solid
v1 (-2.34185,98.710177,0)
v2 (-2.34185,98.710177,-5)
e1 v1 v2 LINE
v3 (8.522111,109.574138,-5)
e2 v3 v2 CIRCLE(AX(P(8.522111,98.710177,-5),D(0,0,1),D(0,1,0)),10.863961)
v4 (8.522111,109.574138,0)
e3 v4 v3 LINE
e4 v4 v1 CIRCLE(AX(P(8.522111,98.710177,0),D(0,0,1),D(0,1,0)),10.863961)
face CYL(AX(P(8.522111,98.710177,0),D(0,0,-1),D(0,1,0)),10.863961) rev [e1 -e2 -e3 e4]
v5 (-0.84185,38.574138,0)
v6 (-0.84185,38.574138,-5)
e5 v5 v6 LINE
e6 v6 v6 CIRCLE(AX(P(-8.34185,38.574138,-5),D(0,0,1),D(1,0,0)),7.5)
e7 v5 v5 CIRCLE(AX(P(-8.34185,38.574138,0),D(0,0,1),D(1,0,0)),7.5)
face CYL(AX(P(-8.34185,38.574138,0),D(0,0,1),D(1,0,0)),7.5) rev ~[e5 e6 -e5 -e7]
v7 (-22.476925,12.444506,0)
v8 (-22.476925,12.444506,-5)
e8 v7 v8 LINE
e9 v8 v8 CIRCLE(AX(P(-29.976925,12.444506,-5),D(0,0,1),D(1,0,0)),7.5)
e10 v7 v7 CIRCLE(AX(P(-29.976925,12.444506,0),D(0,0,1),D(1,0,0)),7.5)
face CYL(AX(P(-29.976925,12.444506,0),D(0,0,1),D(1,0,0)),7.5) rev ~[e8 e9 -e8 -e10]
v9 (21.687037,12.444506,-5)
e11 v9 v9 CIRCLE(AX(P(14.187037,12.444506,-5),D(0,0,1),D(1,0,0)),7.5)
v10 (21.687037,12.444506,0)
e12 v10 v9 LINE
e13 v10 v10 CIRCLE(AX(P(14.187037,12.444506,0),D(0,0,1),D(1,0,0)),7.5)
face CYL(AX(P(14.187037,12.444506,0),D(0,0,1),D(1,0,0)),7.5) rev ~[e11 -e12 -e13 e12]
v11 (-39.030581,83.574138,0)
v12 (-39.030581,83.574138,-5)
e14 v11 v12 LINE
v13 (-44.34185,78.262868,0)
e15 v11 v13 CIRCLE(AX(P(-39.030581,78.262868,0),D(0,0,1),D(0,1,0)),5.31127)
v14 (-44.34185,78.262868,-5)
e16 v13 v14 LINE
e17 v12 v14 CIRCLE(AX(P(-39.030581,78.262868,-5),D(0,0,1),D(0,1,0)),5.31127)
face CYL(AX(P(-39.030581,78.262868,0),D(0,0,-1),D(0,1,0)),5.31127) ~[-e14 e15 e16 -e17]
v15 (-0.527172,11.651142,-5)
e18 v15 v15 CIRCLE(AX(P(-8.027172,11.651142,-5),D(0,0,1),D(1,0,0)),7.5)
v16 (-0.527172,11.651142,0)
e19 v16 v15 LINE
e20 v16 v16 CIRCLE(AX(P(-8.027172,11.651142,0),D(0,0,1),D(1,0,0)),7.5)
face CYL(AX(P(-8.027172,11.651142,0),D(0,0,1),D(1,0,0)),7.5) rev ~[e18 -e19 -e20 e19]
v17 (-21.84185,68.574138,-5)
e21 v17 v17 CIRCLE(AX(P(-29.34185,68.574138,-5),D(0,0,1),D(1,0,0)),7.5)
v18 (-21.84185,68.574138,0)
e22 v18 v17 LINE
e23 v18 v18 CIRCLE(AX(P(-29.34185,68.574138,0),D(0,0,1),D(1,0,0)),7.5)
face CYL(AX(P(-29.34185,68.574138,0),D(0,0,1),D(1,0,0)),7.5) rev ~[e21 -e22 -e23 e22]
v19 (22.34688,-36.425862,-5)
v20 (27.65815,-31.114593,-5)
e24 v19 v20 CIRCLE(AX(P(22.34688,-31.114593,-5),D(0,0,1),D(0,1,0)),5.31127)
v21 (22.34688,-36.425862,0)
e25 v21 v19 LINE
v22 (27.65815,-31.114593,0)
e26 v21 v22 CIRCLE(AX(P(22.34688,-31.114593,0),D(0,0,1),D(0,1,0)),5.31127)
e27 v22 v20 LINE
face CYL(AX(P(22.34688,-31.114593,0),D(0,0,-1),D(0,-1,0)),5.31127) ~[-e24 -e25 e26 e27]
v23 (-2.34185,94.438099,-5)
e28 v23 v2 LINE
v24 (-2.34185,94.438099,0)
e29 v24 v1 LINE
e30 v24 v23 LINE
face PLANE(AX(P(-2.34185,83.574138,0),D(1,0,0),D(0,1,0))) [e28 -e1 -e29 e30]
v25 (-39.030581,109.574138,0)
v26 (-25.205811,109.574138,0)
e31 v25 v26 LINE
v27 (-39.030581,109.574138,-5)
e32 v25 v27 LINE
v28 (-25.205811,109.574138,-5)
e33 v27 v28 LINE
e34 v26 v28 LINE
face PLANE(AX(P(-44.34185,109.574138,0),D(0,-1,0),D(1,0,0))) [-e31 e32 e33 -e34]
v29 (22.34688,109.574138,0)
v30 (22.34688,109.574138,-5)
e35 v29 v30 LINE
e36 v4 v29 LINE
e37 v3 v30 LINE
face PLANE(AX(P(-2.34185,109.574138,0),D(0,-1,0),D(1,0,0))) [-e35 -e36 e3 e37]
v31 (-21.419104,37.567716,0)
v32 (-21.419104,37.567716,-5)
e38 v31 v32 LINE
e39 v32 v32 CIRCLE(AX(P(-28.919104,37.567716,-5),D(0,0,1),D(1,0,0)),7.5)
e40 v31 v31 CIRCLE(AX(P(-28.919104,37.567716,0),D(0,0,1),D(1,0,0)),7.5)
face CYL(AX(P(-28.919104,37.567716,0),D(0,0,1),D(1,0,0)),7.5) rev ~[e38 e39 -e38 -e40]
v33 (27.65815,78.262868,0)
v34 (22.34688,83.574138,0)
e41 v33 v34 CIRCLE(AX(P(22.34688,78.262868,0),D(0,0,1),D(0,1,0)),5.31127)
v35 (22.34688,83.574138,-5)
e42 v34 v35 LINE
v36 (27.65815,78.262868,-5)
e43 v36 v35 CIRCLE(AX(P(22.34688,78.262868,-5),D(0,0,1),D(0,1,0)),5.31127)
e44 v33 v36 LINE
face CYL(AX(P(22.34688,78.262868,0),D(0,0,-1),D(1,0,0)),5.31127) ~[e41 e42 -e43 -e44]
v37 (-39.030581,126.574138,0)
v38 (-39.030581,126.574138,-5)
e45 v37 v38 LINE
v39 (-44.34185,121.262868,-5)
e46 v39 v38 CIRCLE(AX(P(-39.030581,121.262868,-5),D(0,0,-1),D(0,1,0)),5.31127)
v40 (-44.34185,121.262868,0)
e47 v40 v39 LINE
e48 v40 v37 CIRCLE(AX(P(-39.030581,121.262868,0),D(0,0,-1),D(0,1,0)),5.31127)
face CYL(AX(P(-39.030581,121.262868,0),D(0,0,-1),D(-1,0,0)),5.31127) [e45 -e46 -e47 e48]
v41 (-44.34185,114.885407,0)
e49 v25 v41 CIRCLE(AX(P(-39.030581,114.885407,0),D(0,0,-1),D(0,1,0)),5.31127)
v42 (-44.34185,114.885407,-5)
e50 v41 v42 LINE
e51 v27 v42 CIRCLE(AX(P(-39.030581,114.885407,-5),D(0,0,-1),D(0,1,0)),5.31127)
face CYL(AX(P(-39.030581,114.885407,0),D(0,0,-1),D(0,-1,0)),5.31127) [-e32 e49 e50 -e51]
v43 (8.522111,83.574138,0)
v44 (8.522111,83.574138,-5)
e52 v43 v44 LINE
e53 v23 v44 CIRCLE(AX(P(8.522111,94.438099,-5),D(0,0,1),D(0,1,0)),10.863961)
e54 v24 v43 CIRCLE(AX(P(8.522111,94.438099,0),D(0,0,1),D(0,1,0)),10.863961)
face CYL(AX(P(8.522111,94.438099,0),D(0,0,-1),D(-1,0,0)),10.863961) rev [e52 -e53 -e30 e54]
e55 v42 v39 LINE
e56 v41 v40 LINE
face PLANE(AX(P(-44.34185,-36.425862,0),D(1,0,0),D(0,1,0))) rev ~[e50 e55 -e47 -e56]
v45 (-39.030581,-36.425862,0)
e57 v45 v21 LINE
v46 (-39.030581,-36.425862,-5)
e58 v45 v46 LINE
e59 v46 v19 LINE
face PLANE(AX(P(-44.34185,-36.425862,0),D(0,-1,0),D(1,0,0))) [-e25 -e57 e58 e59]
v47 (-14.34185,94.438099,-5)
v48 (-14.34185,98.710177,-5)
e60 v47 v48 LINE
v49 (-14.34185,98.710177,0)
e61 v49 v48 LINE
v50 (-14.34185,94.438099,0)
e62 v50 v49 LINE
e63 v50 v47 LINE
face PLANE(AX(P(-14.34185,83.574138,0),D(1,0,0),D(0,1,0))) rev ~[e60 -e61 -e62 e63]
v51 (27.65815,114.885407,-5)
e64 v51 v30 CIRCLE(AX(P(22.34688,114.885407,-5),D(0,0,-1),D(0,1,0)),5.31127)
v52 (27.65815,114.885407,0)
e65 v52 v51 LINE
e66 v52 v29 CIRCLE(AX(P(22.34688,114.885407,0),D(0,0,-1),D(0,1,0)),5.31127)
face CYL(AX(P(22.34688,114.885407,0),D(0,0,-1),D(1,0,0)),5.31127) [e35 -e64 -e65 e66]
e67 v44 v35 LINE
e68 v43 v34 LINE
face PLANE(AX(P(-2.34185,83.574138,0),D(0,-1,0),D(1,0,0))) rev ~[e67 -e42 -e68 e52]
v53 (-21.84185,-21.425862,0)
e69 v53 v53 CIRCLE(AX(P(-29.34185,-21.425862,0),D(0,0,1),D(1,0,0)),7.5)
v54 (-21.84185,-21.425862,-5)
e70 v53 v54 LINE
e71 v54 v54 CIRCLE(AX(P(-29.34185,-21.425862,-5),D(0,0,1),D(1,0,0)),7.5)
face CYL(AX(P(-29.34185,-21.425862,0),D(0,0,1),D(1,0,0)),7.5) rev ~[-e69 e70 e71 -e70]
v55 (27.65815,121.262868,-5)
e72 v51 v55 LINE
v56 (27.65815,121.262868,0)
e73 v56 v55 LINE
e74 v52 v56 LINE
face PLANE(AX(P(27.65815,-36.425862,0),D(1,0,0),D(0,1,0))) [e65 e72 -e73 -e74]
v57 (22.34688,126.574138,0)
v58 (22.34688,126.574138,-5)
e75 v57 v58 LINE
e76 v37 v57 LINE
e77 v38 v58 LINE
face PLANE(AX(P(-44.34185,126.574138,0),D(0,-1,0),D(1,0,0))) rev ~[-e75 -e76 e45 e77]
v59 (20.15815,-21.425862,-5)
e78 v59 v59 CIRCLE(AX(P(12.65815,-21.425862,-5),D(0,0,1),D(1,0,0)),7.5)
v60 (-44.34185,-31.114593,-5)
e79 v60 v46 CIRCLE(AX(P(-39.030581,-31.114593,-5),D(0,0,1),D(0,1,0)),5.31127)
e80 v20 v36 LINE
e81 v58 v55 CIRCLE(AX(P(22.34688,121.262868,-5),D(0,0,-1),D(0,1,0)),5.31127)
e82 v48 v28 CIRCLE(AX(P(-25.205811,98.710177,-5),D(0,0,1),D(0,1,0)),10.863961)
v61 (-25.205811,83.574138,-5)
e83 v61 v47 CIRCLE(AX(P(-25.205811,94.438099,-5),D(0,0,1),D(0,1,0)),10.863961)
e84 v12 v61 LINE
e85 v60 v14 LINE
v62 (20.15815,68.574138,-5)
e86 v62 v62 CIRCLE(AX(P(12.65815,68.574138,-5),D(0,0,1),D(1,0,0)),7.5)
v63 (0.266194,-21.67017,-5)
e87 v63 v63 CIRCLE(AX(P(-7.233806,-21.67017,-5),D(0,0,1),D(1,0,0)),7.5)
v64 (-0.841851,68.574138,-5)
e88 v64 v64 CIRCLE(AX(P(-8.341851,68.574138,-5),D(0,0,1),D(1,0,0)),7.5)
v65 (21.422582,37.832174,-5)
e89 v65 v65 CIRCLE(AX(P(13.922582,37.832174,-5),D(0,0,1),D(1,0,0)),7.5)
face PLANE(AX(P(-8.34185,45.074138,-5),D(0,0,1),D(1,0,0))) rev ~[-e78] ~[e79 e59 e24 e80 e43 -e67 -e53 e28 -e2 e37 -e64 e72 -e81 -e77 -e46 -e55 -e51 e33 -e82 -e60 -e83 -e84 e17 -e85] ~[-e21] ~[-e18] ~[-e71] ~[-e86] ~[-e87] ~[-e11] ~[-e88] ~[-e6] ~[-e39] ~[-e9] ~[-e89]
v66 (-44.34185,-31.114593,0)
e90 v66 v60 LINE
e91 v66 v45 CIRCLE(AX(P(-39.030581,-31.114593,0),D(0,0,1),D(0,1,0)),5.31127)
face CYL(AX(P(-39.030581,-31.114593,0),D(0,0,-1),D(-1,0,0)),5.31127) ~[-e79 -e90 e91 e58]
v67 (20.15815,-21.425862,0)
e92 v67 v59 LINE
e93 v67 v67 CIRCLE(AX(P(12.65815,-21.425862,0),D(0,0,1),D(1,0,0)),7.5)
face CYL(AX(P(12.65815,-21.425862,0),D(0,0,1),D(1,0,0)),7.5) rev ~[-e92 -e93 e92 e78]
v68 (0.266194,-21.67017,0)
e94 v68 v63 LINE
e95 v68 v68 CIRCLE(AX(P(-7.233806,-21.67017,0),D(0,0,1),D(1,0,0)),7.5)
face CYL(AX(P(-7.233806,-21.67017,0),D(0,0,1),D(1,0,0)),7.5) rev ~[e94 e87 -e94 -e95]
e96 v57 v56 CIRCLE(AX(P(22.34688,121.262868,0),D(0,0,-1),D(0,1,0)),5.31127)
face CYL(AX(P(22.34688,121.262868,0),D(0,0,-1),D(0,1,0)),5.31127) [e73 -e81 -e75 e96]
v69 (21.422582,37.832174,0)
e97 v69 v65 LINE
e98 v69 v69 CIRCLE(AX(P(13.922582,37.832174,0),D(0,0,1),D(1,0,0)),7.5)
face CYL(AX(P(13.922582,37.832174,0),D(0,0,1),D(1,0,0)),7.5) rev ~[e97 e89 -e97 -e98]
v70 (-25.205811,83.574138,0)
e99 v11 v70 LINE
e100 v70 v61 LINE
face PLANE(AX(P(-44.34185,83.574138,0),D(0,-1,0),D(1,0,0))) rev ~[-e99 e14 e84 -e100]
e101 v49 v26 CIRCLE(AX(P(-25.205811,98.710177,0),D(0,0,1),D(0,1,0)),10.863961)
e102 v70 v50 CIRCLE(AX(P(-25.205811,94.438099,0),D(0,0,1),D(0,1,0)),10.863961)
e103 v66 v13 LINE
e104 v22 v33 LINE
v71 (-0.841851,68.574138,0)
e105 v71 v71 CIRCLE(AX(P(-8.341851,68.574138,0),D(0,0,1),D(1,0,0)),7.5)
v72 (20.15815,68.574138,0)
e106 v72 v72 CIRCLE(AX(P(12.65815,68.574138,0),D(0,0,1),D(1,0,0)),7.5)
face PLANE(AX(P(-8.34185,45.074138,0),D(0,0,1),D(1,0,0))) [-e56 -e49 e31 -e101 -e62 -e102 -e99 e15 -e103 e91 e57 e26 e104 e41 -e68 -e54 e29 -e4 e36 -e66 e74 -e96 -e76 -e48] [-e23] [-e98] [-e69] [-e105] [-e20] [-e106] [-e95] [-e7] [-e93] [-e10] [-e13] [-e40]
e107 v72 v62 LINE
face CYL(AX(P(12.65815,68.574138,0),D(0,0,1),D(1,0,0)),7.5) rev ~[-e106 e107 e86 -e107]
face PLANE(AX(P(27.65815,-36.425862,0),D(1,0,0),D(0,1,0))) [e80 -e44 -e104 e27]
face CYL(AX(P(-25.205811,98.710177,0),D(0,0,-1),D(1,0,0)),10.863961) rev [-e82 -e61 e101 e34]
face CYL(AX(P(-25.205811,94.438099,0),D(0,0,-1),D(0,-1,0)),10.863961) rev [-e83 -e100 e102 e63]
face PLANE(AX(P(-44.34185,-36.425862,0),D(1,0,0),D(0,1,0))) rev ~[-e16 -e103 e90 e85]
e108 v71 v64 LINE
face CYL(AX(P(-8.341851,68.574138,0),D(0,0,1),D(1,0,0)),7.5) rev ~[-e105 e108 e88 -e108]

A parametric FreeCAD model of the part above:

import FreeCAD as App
import Part
import Sketcher
Q = App.Units.Quantity


def edges_at(feature, points):
    """Names of the edges that pass closest to the given points."""
    edges = feature.Shape.Edges
    near = lambda p: min(range(len(edges)), key=lambda i: edges[i].distToShape(Part.Vertex(*p))[0])
    return sorted({f"Edge{near(p) + 1}" for p in points})

doc = App.newDocument("Part")
body = doc.addObject("PartDesign::Body", "Body")

# Sketch on XY plane
sketch1 = body.newObject("Sketcher::SketchObject", "Sketch")
sketch1.AttachmentSupport = (doc.getObject("XY_Plane"), [""])
sketch1.MapMode = "FlatFace"
sketch1.addGeometry(Part.LineSegment(App.Vector(-44, 127, 0), App.Vector(-44, -36, 0)), False)
sketch1.addGeometry(Part.LineSegment(App.Vector(-44, -36, 0), App.Vector(28, -36, 0)), False)
sketch1.addGeometry(Part.LineSegment(App.Vector(28, -36, 0), App.Vector(28, 127, 0)), False)
sketch1.addGeometry(Part.LineSegment(App.Vector(28, 127, 0), App.Vector(-44, 127, 0)), False)
sketch1.addConstraint(Sketcher.Constraint("Coincident", 0, 2, 1, 1))
sketch1.addConstraint(Sketcher.Constraint("Coincident", 1, 2, 2, 1))
sketch1.addConstraint(Sketcher.Constraint("Coincident", 2, 2, 3, 1))
sketch1.addConstraint(Sketcher.Constraint("Coincident", 3, 2, 0, 1))
sketch1.addConstraint(Sketcher.Constraint("Vertical", 0))
sketch1.addConstraint(Sketcher.Constraint("Horizontal", 1))
sketch1.addConstraint(Sketcher.Constraint("Vertical", 2))
sketch1.addConstraint(Sketcher.Constraint("Horizontal", 3))
sketch1.addConstraint(Sketcher.Constraint("DistanceX", 1, 1, 1, 2, Q("72 mm")))
sketch1.addConstraint(Sketcher.Constraint("DistanceY", 0, 2, 0, 1, Q("163 mm")))
sketch1.addConstraint(Sketcher.Constraint("DistanceX", 0, 2, -1, 1, Q("44.34185 mm")))
sketch1.addConstraint(Sketcher.Constraint("DistanceY", 0, 2, -1, 1, Q("36.425862 mm")))
pad1 = body.newObject("PartDesign::Pad", "Pad")
pad1.Profile = sketch1
pad1.Length = 5
pad1.Reversed = True

# Sketch on XY plane
sketch2 = body.newObject("Sketcher::SketchObject", "Sketch001")
sketch2.AttachmentSupport = (doc.getObject("XY_Plane"), [""])
sketch2.MapMode = "FlatFace"
sketch2.addGeometry(Part.LineSegment(App.Vector(-2, 110, 0), App.Vector(-2, 84, 0)), False)
sketch2.addGeometry(Part.LineSegment(App.Vector(-2, 84, 0), App.Vector(28, 84, 0)), False)
sketch2.addGeometry(Part.LineSegment(App.Vector(28, 84, 0), App.Vector(28, 110, 0)), False)
sketch2.addGeometry(Part.LineSegment(App.Vector(28, 110, 0), App.Vector(-2, 110, 0)), False)
sketch2.addGeometry(Part.LineSegment(App.Vector(-44, 110, 0), App.Vector(-44, 84, 0)), False)
sketch2.addGeometry(Part.LineSegment(App.Vector(-44, 84, 0), App.Vector(-14, 84, 0)), False)
sketch2.addGeometry(Part.LineSegment(App.Vector(-14, 84, 0), App.Vector(-14, 110, 0)), False)
sketch2.addGeometry(Part.LineSegment(App.Vector(-14, 110, 0), App.Vector(-44, 110, 0)), False)
sketch2.addGeometry(Part.Circle(App.Vector(13, 69, 0), App.Vector(0, 0, 1), 8), False)
sketch2.addGeometry(Part.Circle(App.Vector(-29, 69, 0), App.Vector(0, 0, 1), 8), False)
sketch2.addGeometry(Part.Circle(App.Vector(-8, 39, 0), App.Vector(0, 0, 1), 8), False)
sketch2.addGeometry(Part.Circle(App.Vector(-29, -21, 0), App.Vector(0, 0, 1), 8), False)
sketch2.addGeometry(Part.Circle(App.Vector(13, -21, 0), App.Vector(0, 0, 1), 8), False)
sketch2.addGeometry(Part.Circle(App.Vector(-8, 69, 0), App.Vector(0, 0, 1), 8), False)
sketch2.addGeometry(Part.Circle(App.Vector(-29, 38, 0), App.Vector(0, 0, 1), 8), False)
sketch2.addGeometry(Part.Circle(App.Vector(14, 38, 0), App.Vector(0, 0, 1), 8), False)
sketch2.addGeometry(Part.Circle(App.Vector(-8, 12, 0), App.Vector(0, 0, 1), 8), False)
sketch2.addGeometry(Part.Circle(App.Vector(-30, 12, 0), App.Vector(0, 0, 1), 8), False)
sketch2.addGeometry(Part.Circle(App.Vector(14, 12, 0), App.Vector(0, 0, 1), 8), False)
sketch2.addGeometry(Part.Circle(App.Vector(-7, -22, 0), App.Vector(0, 0, 1), 8), False)
sketch2.addConstraint(Sketcher.Constraint("Coincident", 0, 2, 1, 1))
sketch2.addConstraint(Sketcher.Constraint("Coincident", 1, 2, 2, 1))
sketch2.addConstraint(Sketcher.Constraint("Coincident", 2, 2, 3, 1))
sketch2.addConstraint(Sketcher.Constraint("Coincident", 3, 2, 0, 1))
sketch2.addConstraint(Sketcher.Constraint("Coincident", 4, 2, 5, 1))
sketch2.addConstraint(Sketcher.Constraint("Coincident", 5, 2, 6, 1))
sketch2.addConstraint(Sketcher.Constraint("Coincident", 6, 2, 7, 1))
sketch2.addConstraint(Sketcher.Constraint("Coincident", 7, 2, 4, 1))
sketch2.addConstraint(Sketcher.Constraint("Vertical", 0))
sketch2.addConstraint(Sketcher.Constraint("Horizontal", 1))
sketch2.addConstraint(Sketcher.Constraint("Vertical", 2))
sketch2.addConstraint(Sketcher.Constraint("Horizontal", 3))
sketch2.addConstraint(Sketcher.Constraint("Vertical", 4))
sketch2.addConstraint(Sketcher.Constraint("Horizontal", 5))
sketch2.addConstraint(Sketcher.Constraint("Vertical", 6))
sketch2.addConstraint(Sketcher.Constraint("Horizontal", 7))
sketch2.addConstraint(Sketcher.Constraint("Equal", 8, 9))
sketch2.addConstraint(Sketcher.Constraint("Equal", 9, 10))
sketch2.addConstraint(Sketcher.Constraint("Equal", 10, 11))
sketch2.addConstraint(Sketcher.Constraint("Equal", 11, 12))
sketch2.addConstraint(Sketcher.Constraint("Equal", 12, 13))
sketch2.addConstraint(Sketcher.Constraint("Equal", 13, 14))
sketch2.addConstraint(Sketcher.Constraint("Equal", 14, 15))
sketch2.addConstraint(Sketcher.Constraint("Equal", 15, 16))
sketch2.addConstraint(Sketcher.Constraint("Equal", 16, 17))
sketch2.addConstraint(Sketcher.Constraint("Equal", 17, 18))
sketch2.addConstraint(Sketcher.Constraint("Equal", 18, 19))
sketch2.addConstraint(Sketcher.Constraint("Horizontal", 8, 3, 9, 3))
sketch2.addConstraint(Sketcher.Constraint("Horizontal", 11, 3, 12, 3))
sketch2.addConstraint(Sketcher.Constraint("Horizontal", 9, 3, 13, 3))
sketch2.addConstraint(Sketcher.Constraint("Horizontal", 17, 3, 18, 3))
sketch2.addConstraint(Sketcher.Constraint("Horizontal", 1, 2, 4, 2))
sketch2.addConstraint(Sketcher.Constraint("Horizontal", 3, 2, 6, 2))
sketch2.addConstraint(Sketcher.Constraint("Vertical", 9, 3, 11, 3))
sketch2.addConstraint(Sketcher.Constraint("Vertical", 8, 3, 12, 3))
sketch2.addConstraint(Sketcher.Constraint("Vertical", 10, 3, 13, 3))
sketch2.addConstraint(Sketcher.Constraint("Equal", 3, 5))
sketch2.addConstraint(Sketcher.Constraint("Diameter", 8, Q("15 mm")))
sketch2.addConstraint(Sketcher.Constraint("DistanceX", 1, 1, 1, 2, Q("30 mm")))
sketch2.addConstraint(Sketcher.Constraint("DistanceY", 0, 2, 0, 1, Q("26 mm")))
sketch2.addConstraint(Sketcher.Constraint("DistanceX", 9, 3, 8, 3, Q("42 mm")))
sketch2.addConstraint(Sketcher.Constraint("DistanceX", 10, 3, 8, 3, Q("21 mm")))
sketch2.addConstraint(Sketcher.Constraint("DistanceY", 10, 3, 8, 3, Q("30 mm")))
sketch2.addConstraint(Sketcher.Constraint("DistanceY", 11, 3, 10, 3, Q("60 mm")))
sketch2.addConstraint(Sketcher.Constraint("DistanceX", 13, 3, 0, 2, Q("6 mm")))
sketch2.addConstraint(Sketcher.Constraint("DistanceY", 13, 3, 0, 2, Q("15 mm")))
sketch2.addConstraint(Sketcher.Constraint("DistanceX", 4, 2, 9, 3, Q("15 mm")))
sketch2.addConstraint(Sketcher.Constraint("DistanceX", -1, 1, 8, 3, Q("12.65815 mm")))
sketch2.addConstraint(Sketcher.Constraint("DistanceX", 16, 3, -1, 1, Q("8.027172 mm")))
sketch2.addConstraint(Sketcher.Constraint("DistanceY", -1, 1, 16, 3, Q("11.651142 mm")))
sketch2.addConstraint(Sketcher.Constraint("DistanceY", 19, 3, -1, 1, Q("21.67017 mm")))
sketch2.addConstraint(Sketcher.Constraint("DistanceY", 14, 3, 10, 3, Q("1.006421 mm")))
sketch2.addConstraint(Sketcher.Constraint("DistanceY", 14, 3, 15, 3, Q("0.264458 mm")))
sketch2.addConstraint(Sketcher.Constraint("DistanceX", 17, 3, 14, 3, Q("1.05782 mm")))
sketch2.addConstraint(Sketcher.Constraint("DistanceY", 17, 3, 14, 3, Q("25.12321 mm")))
sketch2.addConstraint(Sketcher.Constraint("DistanceX", 16, 3, 18, 3, Q("22.214209 mm")))
sketch2.addConstraint(Sketcher.Constraint("DistanceX", 17, 3, 18, 3, Q("44.163962 mm")))
sketch2.addConstraint(Sketcher.Constraint("DistanceX", 17, 3, 19, 3, Q("22.743118 mm")))
sketch2.addConstraint(Sketcher.Constraint("DistanceY", -1, 1, 8, 3, Q("68.574138 mm")))
sketch2.addConstraint(Sketcher.Constraint("DistanceX", -1, 1, 15, 3, Q("13.922582 mm")))
pocket1 = body.newObject("PartDesign::Pocket", "Pocket")
pocket1.Profile = sketch2
pocket1.Length = 25
doc.recompute()

fillet = body.newObject("PartDesign::Fillet", "Fillet")
fillet.Base = (pocket1, edges_at(pocket1, [
    (-2.342, 109.574, -2.5),
    (-2.342, 83.574, -2.5),
    (-14.342, 83.574, -2.5),
    (-14.342, 109.574, -2.5),
]))
fillet.Radius = 10.863961
doc.recompute()

fillet2 = body.newObject("PartDesign::Fillet", "Fillet001")
fillet2.Base = (fillet, edges_at(fillet, [
    (27.658, 126.574, -2.5),
    (-44.342, 126.574, -2.5),
    (-44.342, 109.574, -2.5),
    (-44.342, 83.574, -2.5),
    (27.658, 109.574, -2.5),
    (27.658, 83.574, -2.5),
    (-44.342, -36.426, -2.5),
    (27.658, -36.426, -2.5),
]))
fillet2.Radius = 5.31127

doc.recompute()
